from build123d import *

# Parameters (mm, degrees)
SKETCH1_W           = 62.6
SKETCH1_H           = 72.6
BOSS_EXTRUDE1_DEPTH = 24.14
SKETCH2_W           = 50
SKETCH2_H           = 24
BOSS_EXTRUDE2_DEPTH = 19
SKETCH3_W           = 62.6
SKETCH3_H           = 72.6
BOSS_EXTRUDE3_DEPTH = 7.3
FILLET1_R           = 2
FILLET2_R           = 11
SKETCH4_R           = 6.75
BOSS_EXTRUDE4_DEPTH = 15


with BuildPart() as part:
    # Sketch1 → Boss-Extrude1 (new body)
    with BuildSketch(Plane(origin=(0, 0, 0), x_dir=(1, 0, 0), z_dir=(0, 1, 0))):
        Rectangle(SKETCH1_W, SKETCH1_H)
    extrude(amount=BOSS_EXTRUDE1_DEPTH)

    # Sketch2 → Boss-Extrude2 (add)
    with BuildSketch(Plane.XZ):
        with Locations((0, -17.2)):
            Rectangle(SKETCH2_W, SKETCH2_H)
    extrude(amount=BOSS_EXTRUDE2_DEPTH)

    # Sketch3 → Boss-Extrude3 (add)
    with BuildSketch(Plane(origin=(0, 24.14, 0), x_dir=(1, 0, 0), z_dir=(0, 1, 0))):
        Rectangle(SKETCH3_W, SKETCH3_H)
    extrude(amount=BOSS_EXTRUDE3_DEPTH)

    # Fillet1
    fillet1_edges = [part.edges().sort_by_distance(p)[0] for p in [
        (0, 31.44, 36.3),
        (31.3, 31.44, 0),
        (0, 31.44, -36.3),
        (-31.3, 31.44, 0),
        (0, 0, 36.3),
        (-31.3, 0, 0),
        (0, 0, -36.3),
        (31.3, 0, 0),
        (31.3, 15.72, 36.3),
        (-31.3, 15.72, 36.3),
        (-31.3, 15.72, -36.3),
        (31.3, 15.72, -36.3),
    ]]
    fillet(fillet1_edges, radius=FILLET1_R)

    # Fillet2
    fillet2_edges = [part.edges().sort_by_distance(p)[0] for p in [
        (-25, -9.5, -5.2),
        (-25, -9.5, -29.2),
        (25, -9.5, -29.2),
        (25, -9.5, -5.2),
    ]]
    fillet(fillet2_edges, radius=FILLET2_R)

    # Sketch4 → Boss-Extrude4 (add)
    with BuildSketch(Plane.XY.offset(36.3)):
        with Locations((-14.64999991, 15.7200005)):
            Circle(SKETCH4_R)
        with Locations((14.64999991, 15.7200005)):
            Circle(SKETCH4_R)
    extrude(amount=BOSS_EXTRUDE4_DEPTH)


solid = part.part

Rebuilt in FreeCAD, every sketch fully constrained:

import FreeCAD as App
import Part
import Sketcher
from FreeCAD import Vector
Q = App.Units.Quantity


def edges_at(feature, points):
    """Names of the edges that pass closest to the given points."""
    edges = feature.Shape.Edges
    near = lambda p: min(range(len(edges)), key=lambda i: edges[i].distToShape(Part.Vertex(*p))[0])
    return sorted({f"Edge{near(p) + 1}" for p in points})

doc = App.newDocument("Part")
params = doc.addObject("Spreadsheet::Sheet", "Params")
for row, (alias, value) in enumerate([
    ("sketch1_width", "62.6 mm"),
    ("sketch1_height", "72.6 mm"),
    ("pad1_length", "24.14 mm"),
    ("sketch2_width", "50 mm"),
    ("sketch2_height", "24 mm"),
    ("pad2_length", "19 mm"),
    ("sketch3_width", "62.6 mm"),
    ("sketch3_height", "72.6 mm"),
    ("pad3_length", "7.3 mm"),
    ("fillet_radius", "2 mm"),
    ("fillet2_radius", "11 mm"),
    ("sketch4_diameter", "13.5 mm"),
    ("pad4_length", "15 mm"),
], start=1):
    params.set(f"A{row}", alias)
    params.set(f"B{row}", "=" + value)
    params.setAlias(f"B{row}", alias)

body = doc.addObject("PartDesign::Body", "Body")

sketch1 = doc.addObject("Sketcher::SketchObject", "Sketch")
body.addObject(sketch1)
sketch1.AttachmentSupport = (doc.XZ_Plane, [""])
sketch1.MapMode = "FlatFace"
sketch1.addGeometry([
    Part.LineSegment(Vector(-31.3, -36.3, 0), Vector(-31.3, 36.3, 0)),
    Part.LineSegment(Vector(-31.3, 36.3, 0), Vector(31.3, 36.3, 0)),
    Part.LineSegment(Vector(31.3, 36.3, 0), Vector(31.3, -36.3, 0)),
    Part.LineSegment(Vector(31.3, -36.3, 0), Vector(-31.3, -36.3, 0)),
], False)
sketch1.addConstraint([
    Sketcher.Constraint("Coincident", 0, 2, 1, 1),
    Sketcher.Constraint("Coincident", 1, 2, 2, 1),
    Sketcher.Constraint("Coincident", 2, 2, 3, 1),
    Sketcher.Constraint("Coincident", 3, 2, 0, 1),
    Sketcher.Constraint("Vertical", 0),
    Sketcher.Constraint("Horizontal", 1),
    Sketcher.Constraint("Vertical", 2),
    Sketcher.Constraint("Horizontal", 3),
    Sketcher.Constraint("Symmetric", 0, 2, 2, 2, -1, 1),
    Sketcher.Constraint("DistanceX", 1, 1, 1, 2, Q("62.6 mm")),
    Sketcher.Constraint("DistanceY", 0, 1, 0, 2, Q("72.6 mm")),
])
sketch1.setExpression("Constraints[9]", "Params.sketch1_width")
sketch1.setExpression("Constraints[10]", "Params.sketch1_height")
pad1 = doc.addObject("PartDesign::Pad", "Pad")
body.addObject(pad1)
pad1.Profile = sketch1
pad1.setExpression("Length", "Params.pad1_length")
pad1.Reversed = True

sketch2 = doc.addObject("Sketcher::SketchObject", "Sketch001")
body.addObject(sketch2)
sketch2.AttachmentSupport = (doc.XZ_Plane, [""])
sketch2.MapMode = "FlatFace"
sketch2.addGeometry([
    Part.LineSegment(Vector(-25, -5.2, 0), Vector(-25, -29.2, 0)),
    Part.LineSegment(Vector(-25, -29.2, 0), Vector(25, -29.2, 0)),
    Part.LineSegment(Vector(25, -29.2, 0), Vector(25, -5.2, 0)),
    Part.LineSegment(Vector(25, -5.2, 0), Vector(-25, -5.2, 0)),
], False)
sketch2.addConstraint([
    Sketcher.Constraint("Coincident", 0, 2, 1, 1),
    Sketcher.Constraint("Coincident", 1, 2, 2, 1),
    Sketcher.Constraint("Coincident", 2, 2, 3, 1),
    Sketcher.Constraint("Coincident", 3, 2, 0, 1),
    Sketcher.Constraint("Vertical", 0),
    Sketcher.Constraint("Horizontal", 1),
    Sketcher.Constraint("Vertical", 2),
    Sketcher.Constraint("Horizontal", 3),
    Sketcher.Constraint("DistanceX", 1, 1, 1, 2, Q("50 mm")),
    Sketcher.Constraint("DistanceY", 0, 2, 0, 1, Q("24 mm")),
    Sketcher.Constraint("DistanceX", 0, 2, -1, 1, Q("25 mm")),
    Sketcher.Constraint("DistanceY", 0, 2, -1, 1, Q("29.2 mm")),
])
sketch2.setExpression("Constraints[8]", "Params.sketch2_width")
sketch2.setExpression("Constraints[9]", "Params.sketch2_height")
pad2 = doc.addObject("PartDesign::Pad", "Pad001")
body.addObject(pad2)
pad2.Profile = sketch2
pad2.setExpression("Length", "Params.pad2_length")

sketch3 = doc.addObject("Sketcher::SketchObject", "Sketch002")
body.addObject(sketch3)
sketch3.AttachmentSupport = (doc.XZ_Plane, [""])
sketch3.MapMode = "FlatFace"
sketch3.AttachmentOffset = App.Placement(Vector(0, 0, -24.14), App.Rotation())
sketch3.addGeometry([
    Part.LineSegment(Vector(-31.3, -36.3, 0), Vector(-31.3, 36.3, 0)),
    Part.LineSegment(Vector(-31.3, 36.3, 0), Vector(31.3, 36.3, 0)),
    Part.LineSegment(Vector(31.3, 36.3, 0), Vector(31.3, -36.3, 0)),
    Part.LineSegment(Vector(31.3, -36.3, 0), Vector(-31.3, -36.3, 0)),
], False)
sketch3.addConstraint([
    Sketcher.Constraint("Coincident", 0, 2, 1, 1),
    Sketcher.Constraint("Coincident", 1, 2, 2, 1),
    Sketcher.Constraint("Coincident", 2, 2, 3, 1),
    Sketcher.Constraint("Coincident", 3, 2, 0, 1),
    Sketcher.Constraint("Vertical", 0),
    Sketcher.Constraint("Horizontal", 1),
    Sketcher.Constraint("Vertical", 2),
    Sketcher.Constraint("Horizontal", 3),
    Sketcher.Constraint("Symmetric", 0, 2, 2, 2, -1, 1),
    Sketcher.Constraint("DistanceX", 1, 1, 1, 2, Q("62.6 mm")),
    Sketcher.Constraint("DistanceY", 0, 1, 0, 2, Q("72.6 mm")),
])
sketch3.setExpression("Constraints[9]", "Params.sketch3_width")
sketch3.setExpression("Constraints[10]", "Params.sketch3_height")
pad3 = doc.addObject("PartDesign::Pad", "Pad002")
body.addObject(pad3)
pad3.Profile = sketch3
pad3.setExpression("Length", "Params.pad3_length")
pad3.Reversed = True
doc.recompute()

fillet = doc.addObject("PartDesign::Fillet", "Fillet")
body.addObject(fillet)
fillet.Base = (pad3, edges_at(pad3, [
    (0, 31.44, 36.3),
    (31.3, 31.44, 0),
    (0, 31.44, -36.3),
    (-31.3, 31.44, 0),
    (0, 0, 36.3),
    (-31.3, 0, 0),
    (0, 0, -36.3),
    (31.3, 0, 0),
    (31.3, 15.72, 36.3),
    (-31.3, 15.72, 36.3),
    (-31.3, 15.72, -36.3),
    (31.3, 15.72, -36.3),
]))
fillet.setExpression("Radius", "Params.fillet_radius")
doc.recompute()

fillet2 = doc.addObject("PartDesign::Fillet", "Fillet001")
body.addObject(fillet2)
fillet2.Base = (fillet, edges_at(fillet, [
    (-25, -9.5, -5.2),
    (-25, -9.5, -29.2),
    (25, -9.5, -29.2),
    (25, -9.5, -5.2),
]))
fillet2.setExpression("Radius", "Params.fillet2_radius")

sketch4 = doc.addObject("Sketcher::SketchObject", "Sketch003")
body.addObject(sketch4)
sketch4.AttachmentSupport = (doc.XY_Plane, [""])
sketch4.MapMode = "FlatFace"
sketch4.AttachmentOffset = App.Placement(Vector(0, 0, 36.3), App.Rotation())
sketch4.addGeometry([
    Part.Circle(Vector(-14.65, 15.72, 0), Vector(0, 0, 1), 6.75),
    Part.Circle(Vector(14.65, 15.72, 0), Vector(0, 0, 1), 6.75),
], False)
sketch4.addConstraint([
    Sketcher.Constraint("Equal", 0, 1),
    Sketcher.Constraint("Symmetric", 0, 3, 1, 3, -2),
    Sketcher.Constraint("Diameter", 0, Q("13.5 mm")),
    Sketcher.Constraint("DistanceX", 0, 3, 1, 3, Q("29.3 mm")),
    Sketcher.Constraint("DistanceY", -1, 1, 0, 3, Q("15.72 mm")),
])
sketch4.setExpression("Constraints[2]", "Params.sketch4_diameter")
pad4 = doc.addObject("PartDesign::Pad", "Pad003")
body.addObject(pad4)
pad4.Profile = sketch4
pad4.setExpression("Length", "Params.pad4_length")

doc.recompute()
